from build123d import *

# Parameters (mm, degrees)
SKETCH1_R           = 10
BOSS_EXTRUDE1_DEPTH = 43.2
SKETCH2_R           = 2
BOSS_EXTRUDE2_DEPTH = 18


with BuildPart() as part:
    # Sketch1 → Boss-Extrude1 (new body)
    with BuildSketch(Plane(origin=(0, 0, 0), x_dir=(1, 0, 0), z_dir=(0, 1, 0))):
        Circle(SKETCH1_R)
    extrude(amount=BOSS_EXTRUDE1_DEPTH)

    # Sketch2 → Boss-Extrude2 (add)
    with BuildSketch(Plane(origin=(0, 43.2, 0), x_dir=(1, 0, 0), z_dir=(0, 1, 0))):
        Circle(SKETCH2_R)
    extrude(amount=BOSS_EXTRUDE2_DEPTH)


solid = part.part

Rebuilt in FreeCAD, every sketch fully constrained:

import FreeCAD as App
import Part
import Sketcher

V = App.Vector
Q = App.Units.Quantity

doc = App.newDocument("Part")
params = doc.addObject("Spreadsheet::Sheet", "Params")
for row, (alias, value) in enumerate([
    ("sketch1_diameter", "20 mm"),
    ("pad1_length", "43.2 mm"),
    ("sketch2_diameter", "4 mm"),
    ("pad2_length", "18 mm"),
], start=1):
    params.set(f"A{row}", alias)
    params.set(f"B{row}", "=" + value)
    params.setAlias(f"B{row}", alias)

body = doc.addObject("PartDesign::Body", "Body")

sketch1 = body.newObject("Sketcher::SketchObject", "Sketch")
sketch1.AttachmentSupport = (doc.getObject("XZ_Plane"), [""])
sketch1.MapMode = "FlatFace"
sketch1.addGeometry(Part.Circle(V(0, 0, 0), V(0, 0, 1), 10), False)
sketch1.addConstraint(Sketcher.Constraint("Coincident", 0, 3, -1, 1))
sketch1.addConstraint(Sketcher.Constraint("Diameter", 0, Q("20 mm")))
sketch1.setExpression("Constraints[1]", "Params.sketch1_diameter")
pad1 = body.newObject("PartDesign::Pad", "Pad")
pad1.Profile = sketch1
pad1.setExpression("Length", "Params.pad1_length")
pad1.Reversed = True

sketch2 = body.newObject("Sketcher::SketchObject", "Sketch001")
sketch2.AttachmentSupport = (doc.getObject("XZ_Plane"), [""])
sketch2.MapMode = "FlatFace"
sketch2.AttachmentOffset = App.Placement(V(0, 0, -43.2), App.Rotation())
sketch2.addGeometry(Part.Circle(V(0, 0, 0), V(0, 0, 1), 2), False)
sketch2.addConstraint(Sketcher.Constraint("Coincident", 0, 3, -1, 1))
sketch2.addConstraint(Sketcher.Constraint("Diameter", 0, Q("4 mm")))
sketch2.setExpression("Constraints[1]", "Params.sketch2_diameter")
pad2 = body.newObject("PartDesign::Pad", "Pad001")
pad2.Profile = sketch2
pad2.setExpression("Length", "Params.pad2_length")
pad2.Reversed = True

doc.recompute()
